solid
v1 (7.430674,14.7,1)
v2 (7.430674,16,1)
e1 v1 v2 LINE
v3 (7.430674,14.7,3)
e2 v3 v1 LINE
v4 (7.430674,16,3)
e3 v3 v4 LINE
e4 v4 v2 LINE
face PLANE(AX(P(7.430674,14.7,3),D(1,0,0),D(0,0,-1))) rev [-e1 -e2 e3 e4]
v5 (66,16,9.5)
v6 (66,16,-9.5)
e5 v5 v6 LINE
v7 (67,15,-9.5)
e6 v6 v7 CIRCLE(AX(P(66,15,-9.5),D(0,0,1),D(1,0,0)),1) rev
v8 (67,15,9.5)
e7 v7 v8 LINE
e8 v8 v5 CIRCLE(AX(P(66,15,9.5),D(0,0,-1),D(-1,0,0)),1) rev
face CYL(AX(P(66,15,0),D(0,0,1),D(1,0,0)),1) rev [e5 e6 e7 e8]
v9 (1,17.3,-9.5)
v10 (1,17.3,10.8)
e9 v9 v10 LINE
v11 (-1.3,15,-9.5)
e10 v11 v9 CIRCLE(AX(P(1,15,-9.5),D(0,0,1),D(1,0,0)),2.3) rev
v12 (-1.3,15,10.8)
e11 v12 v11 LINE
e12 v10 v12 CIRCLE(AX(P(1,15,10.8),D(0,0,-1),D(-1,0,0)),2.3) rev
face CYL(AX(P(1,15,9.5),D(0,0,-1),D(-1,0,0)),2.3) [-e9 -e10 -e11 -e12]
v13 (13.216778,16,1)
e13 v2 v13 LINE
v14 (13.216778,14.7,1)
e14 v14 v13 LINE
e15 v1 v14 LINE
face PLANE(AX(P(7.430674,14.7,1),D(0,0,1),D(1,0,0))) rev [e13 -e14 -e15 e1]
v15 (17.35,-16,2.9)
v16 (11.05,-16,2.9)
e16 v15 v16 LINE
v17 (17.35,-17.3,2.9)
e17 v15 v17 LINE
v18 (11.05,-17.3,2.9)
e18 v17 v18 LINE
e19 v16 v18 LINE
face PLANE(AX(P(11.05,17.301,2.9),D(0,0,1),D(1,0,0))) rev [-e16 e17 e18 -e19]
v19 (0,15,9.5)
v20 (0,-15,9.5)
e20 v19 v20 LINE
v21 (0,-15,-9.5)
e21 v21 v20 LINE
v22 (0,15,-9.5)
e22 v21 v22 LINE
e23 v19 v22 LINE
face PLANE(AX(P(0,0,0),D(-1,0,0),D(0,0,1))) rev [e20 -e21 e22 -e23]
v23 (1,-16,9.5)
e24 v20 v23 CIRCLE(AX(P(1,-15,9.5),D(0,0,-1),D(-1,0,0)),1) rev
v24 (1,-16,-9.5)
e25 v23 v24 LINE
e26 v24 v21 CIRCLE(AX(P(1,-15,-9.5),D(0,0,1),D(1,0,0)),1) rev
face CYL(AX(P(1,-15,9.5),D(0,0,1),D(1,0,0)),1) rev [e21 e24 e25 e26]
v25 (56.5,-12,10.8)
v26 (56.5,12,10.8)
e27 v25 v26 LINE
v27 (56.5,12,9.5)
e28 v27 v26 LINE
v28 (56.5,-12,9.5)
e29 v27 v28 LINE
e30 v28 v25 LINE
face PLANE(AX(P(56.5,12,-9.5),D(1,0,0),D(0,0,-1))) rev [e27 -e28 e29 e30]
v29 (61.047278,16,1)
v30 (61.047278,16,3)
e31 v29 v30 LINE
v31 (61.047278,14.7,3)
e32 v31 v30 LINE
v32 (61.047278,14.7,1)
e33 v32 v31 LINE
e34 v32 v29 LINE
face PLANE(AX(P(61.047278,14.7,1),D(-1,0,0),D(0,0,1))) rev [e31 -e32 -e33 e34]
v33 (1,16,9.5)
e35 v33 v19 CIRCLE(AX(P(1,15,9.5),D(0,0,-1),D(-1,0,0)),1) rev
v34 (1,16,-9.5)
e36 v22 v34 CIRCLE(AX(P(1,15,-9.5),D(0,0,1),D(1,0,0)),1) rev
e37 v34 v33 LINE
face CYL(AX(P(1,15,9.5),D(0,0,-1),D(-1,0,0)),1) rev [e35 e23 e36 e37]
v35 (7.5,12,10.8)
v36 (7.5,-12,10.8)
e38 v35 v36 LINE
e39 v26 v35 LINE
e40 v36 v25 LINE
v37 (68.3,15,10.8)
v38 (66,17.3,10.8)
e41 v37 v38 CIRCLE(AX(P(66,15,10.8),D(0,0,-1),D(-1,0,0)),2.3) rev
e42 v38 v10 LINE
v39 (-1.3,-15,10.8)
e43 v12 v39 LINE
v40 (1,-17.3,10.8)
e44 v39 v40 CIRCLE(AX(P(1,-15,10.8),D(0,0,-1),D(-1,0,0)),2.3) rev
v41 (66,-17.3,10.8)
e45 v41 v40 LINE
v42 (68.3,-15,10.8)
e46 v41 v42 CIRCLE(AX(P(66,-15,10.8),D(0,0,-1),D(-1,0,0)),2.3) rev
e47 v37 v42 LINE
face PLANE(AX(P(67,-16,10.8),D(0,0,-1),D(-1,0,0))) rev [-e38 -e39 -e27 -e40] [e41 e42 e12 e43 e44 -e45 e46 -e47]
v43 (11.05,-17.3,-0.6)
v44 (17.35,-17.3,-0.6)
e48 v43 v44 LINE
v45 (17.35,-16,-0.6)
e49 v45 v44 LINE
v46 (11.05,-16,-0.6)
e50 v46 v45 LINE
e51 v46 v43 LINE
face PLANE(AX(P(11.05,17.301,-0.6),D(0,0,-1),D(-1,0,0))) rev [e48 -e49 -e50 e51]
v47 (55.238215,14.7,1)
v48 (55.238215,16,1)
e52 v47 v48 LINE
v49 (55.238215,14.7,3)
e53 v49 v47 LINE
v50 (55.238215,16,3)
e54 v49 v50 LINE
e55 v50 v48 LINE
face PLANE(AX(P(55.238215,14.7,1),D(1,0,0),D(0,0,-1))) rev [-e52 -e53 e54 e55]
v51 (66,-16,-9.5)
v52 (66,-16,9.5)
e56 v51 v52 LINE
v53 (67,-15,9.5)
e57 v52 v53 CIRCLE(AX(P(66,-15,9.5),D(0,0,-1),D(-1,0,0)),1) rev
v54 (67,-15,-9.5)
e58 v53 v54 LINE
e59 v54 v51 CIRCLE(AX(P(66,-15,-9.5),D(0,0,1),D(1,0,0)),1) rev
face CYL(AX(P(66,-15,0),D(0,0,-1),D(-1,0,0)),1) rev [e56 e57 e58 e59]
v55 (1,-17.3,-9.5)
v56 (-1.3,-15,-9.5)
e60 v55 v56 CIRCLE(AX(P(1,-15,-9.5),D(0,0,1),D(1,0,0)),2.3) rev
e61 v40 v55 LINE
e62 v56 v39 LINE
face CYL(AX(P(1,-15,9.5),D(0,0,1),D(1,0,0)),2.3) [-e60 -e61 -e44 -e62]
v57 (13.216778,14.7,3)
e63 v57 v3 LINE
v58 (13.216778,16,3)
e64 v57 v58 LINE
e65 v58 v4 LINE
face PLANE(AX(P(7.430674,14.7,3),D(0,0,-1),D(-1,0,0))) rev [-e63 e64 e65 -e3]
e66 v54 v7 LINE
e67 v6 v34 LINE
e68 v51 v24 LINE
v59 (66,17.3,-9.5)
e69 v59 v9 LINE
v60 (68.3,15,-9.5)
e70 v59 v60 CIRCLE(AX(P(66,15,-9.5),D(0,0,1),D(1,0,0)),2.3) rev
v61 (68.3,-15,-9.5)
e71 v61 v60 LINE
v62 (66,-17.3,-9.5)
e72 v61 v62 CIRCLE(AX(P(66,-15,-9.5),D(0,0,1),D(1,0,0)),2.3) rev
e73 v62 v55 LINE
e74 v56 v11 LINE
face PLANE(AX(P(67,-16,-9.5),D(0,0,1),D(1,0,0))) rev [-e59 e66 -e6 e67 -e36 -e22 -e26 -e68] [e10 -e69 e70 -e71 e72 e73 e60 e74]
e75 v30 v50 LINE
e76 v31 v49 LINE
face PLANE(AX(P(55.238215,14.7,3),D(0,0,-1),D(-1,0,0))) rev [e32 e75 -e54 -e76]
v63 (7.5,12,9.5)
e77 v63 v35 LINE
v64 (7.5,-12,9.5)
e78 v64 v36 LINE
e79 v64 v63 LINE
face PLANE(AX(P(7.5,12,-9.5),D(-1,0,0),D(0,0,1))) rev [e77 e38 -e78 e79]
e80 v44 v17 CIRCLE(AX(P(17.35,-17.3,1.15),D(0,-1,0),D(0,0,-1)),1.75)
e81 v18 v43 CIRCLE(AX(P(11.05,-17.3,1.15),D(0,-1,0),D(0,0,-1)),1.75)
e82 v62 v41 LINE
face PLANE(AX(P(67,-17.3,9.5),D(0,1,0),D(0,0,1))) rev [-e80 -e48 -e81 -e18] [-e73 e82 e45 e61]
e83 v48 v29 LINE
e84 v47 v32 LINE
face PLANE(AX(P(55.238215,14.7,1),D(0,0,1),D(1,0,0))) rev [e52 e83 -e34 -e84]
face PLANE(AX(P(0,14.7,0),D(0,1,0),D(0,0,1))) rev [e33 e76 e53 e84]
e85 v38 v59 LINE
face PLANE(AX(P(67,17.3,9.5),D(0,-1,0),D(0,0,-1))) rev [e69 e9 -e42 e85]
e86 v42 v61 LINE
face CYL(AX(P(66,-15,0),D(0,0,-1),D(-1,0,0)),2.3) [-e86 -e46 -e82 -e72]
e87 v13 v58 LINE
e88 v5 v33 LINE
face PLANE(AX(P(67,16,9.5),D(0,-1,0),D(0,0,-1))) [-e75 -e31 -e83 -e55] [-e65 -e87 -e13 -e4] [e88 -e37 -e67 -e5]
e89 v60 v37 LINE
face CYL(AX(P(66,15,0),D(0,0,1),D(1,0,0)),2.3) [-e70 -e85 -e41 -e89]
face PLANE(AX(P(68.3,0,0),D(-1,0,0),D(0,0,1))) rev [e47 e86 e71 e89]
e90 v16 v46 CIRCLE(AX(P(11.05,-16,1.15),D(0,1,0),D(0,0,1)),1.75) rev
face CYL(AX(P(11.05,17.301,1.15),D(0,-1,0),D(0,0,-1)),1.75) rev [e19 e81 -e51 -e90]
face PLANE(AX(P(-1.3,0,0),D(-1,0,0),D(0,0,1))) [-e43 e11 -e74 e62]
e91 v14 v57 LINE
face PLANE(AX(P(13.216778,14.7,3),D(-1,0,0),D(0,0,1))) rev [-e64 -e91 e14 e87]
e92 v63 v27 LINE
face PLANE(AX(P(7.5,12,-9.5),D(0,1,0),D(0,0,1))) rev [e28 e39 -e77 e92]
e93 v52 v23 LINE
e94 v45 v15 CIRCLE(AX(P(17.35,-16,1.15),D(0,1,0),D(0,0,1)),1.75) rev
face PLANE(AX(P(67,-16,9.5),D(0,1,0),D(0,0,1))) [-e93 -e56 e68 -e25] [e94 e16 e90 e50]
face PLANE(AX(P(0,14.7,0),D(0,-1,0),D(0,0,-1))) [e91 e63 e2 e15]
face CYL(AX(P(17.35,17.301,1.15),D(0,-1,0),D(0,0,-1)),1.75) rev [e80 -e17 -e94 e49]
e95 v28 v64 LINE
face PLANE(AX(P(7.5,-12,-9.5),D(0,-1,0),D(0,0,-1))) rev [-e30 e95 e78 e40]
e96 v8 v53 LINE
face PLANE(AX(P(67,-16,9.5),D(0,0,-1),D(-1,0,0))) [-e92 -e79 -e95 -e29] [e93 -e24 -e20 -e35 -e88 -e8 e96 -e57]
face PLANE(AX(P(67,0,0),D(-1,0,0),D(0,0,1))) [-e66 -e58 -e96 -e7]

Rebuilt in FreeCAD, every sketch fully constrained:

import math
import FreeCAD as App
import Part
import Sketcher
from FreeCAD import Vector
Q = App.Units.Quantity


def edges_at(feature, points):
    """Names of the edges that pass closest to the given points."""
    edges = feature.Shape.Edges
    near = lambda p: min(range(len(edges)), key=lambda i: edges[i].distToShape(Part.Vertex(*p))[0])
    return sorted({f"Edge{near(p) + 1}" for p in points})


def faces_at(feature, points):
    """Names of the faces that lie closest to the given points."""
    faces = feature.Shape.Faces
    near = lambda p: min(range(len(faces)), key=lambda i: faces[i].distToShape(Part.Vertex(*p))[0])
    return sorted({f"Face{near(p) + 1}" for p in points})

doc = App.newDocument("Part")
body = doc.addObject("PartDesign::Body", "Body")

# Sketch on YZ plane
sketch1 = body.newObject("Sketcher::SketchObject", "Sketch")
sketch1.AttachmentSupport = (doc.getObject("YZ_Plane"), [""])
sketch1.MapMode = "FlatFace"
sketch1.addGeometry(Part.LineSegment(Vector(16, 10, 0), Vector(-16, 10, 0)), False)
sketch1.addGeometry(Part.LineSegment(Vector(-16, 10, 0), Vector(-16, -10, 0)), False)
sketch1.addGeometry(Part.LineSegment(Vector(-16, -10, 0), Vector(16, -10, 0)), False)
sketch1.addGeometry(Part.LineSegment(Vector(16, -10, 0), Vector(16, 10, 0)), False)
sketch1.addConstraint(Sketcher.Constraint("Coincident", 0, 2, 1, 1))
sketch1.addConstraint(Sketcher.Constraint("Coincident", 1, 2, 2, 1))
sketch1.addConstraint(Sketcher.Constraint("Coincident", 2, 2, 3, 1))
sketch1.addConstraint(Sketcher.Constraint("Coincident", 3, 2, 0, 1))
sketch1.addConstraint(Sketcher.Constraint("Horizontal", 0))
sketch1.addConstraint(Sketcher.Constraint("Vertical", 1))
sketch1.addConstraint(Sketcher.Constraint("Horizontal", 2))
sketch1.addConstraint(Sketcher.Constraint("Vertical", 3))
sketch1.addConstraint(Sketcher.Constraint("Symmetric", 0, 2, 2, 2, -1, 1))
sketch1.addConstraint(Sketcher.Constraint("DistanceX", 0, 2, 0, 1, Q("32 mm")))
sketch1.addConstraint(Sketcher.Constraint("DistanceY", 1, 2, 1, 1, Q("19 mm")))
pad1 = body.newObject("PartDesign::Pad", "Pad")
pad1.Profile = sketch1
pad1.Length = 67
doc.recompute()

fillet = body.newObject("PartDesign::Fillet", "Fillet")
fillet.Base = (pad1, edges_at(pad1, [
    (67, -16, 0),
    (0, -16, 0),
    (0, 16, 0),
    (67, 16, 0),
]))
fillet.Radius = 1
doc.recompute()

thickness = body.newObject("PartDesign::Thickness", "Thickness")
thickness.Base = (fillet, faces_at(fillet, [(33.5, 0, -9.5)]))
thickness.Value = 1.3
thickness.Reversed = False
thickness.Join = "Intersection"

# Sketch on XY plane
sketch2 = body.newObject("Sketcher::SketchObject", "Sketch001")
sketch2.AttachmentSupport = (doc.getObject("XY_Plane"), [""])
sketch2.MapMode = "FlatFace"
sketch2.AttachmentOffset = App.Placement(Vector(0, 0, 10.8), App.Rotation())
sketch2.addGeometry(Part.LineSegment(Vector(8, 12, 0), Vector(8, -12, 0)), False)
sketch2.addGeometry(Part.LineSegment(Vector(8, -12, 0), Vector(56, -12, 0)), False)
sketch2.addGeometry(Part.LineSegment(Vector(56, -12, 0), Vector(56, 12, 0)), False)
sketch2.addGeometry(Part.LineSegment(Vector(56, 12, 0), Vector(8, 12, 0)), False)
sketch2.addConstraint(Sketcher.Constraint("Coincident", 0, 2, 1, 1))
sketch2.addConstraint(Sketcher.Constraint("Coincident", 1, 2, 2, 1))
sketch2.addConstraint(Sketcher.Constraint("Coincident", 2, 2, 3, 1))
sketch2.addConstraint(Sketcher.Constraint("Coincident", 3, 2, 0, 1))
sketch2.addConstraint(Sketcher.Constraint("Vertical", 0))
sketch2.addConstraint(Sketcher.Constraint("Horizontal", 1))
sketch2.addConstraint(Sketcher.Constraint("Vertical", 2))
sketch2.addConstraint(Sketcher.Constraint("Horizontal", 3))
sketch2.addConstraint(Sketcher.Constraint("DistanceX", 1, 1, 1, 2, Q("49 mm")))
sketch2.addConstraint(Sketcher.Constraint("DistanceY", 0, 2, 0, 1, Q("24 mm")))
sketch2.addConstraint(Sketcher.Constraint("DistanceY", 0, 2, -1, 1, Q("12 mm")))
sketch2.addConstraint(Sketcher.Constraint("DistanceX", -1, 1, 0, 2, Q("7.5 mm")))
pocket1 = body.newObject("PartDesign::Pocket", "Pocket")
pocket1.Profile = sketch2
pocket1.Type = "ThroughAll"

# Sketch on XZ plane
sketch3 = body.newObject("Sketcher::SketchObject", "Sketch002")
sketch3.AttachmentSupport = (doc.getObject("XZ_Plane"), [""])
sketch3.MapMode = "FlatFace"
sketch3.AttachmentOffset = App.Placement(Vector(0, 0, 17.3), App.Rotation())
sketch3.addGeometry(Part.LineSegment(Vector(17.4, 2.9, 0), Vector(11.1, 2.9, 0)), False)
sketch3.addGeometry(Part.ArcOfCircle(Part.Circle(Vector(11.1, 1.1, 0), Vector(0, 0, 1), 1.8), math.radians(90), math.radians(270)), False)
sketch3.addGeometry(Part.LineSegment(Vector(11.1, -0.6, 0), Vector(17.4, -0.6, 0)), False)
sketch3.addGeometry(Part.ArcOfCircle(Part.Circle(Vector(17.4, 1.1, 0), Vector(0, 0, 1), 1.8), math.radians(-90), math.radians(90)), False)
sketch3.addConstraint(Sketcher.Constraint("Tangent", 0, 2, 1, 1))
sketch3.addConstraint(Sketcher.Constraint("Tangent", 1, 2, 2, 1))
sketch3.addConstraint(Sketcher.Constraint("Tangent", 2, 2, 3, 1))
sketch3.addConstraint(Sketcher.Constraint("Tangent", 3, 2, 0, 1))
sketch3.addConstraint(Sketcher.Constraint("Horizontal", 0))
sketch3.addConstraint(Sketcher.Constraint("Horizontal", 2))
sketch3.addConstraint(Sketcher.Constraint("Radius", 1, Q("1.75 mm")))
sketch3.addConstraint(Sketcher.Constraint("DistanceX", 0, 2, 0, 1, Q("6.3 mm")))
sketch3.addConstraint(Sketcher.Constraint("DistanceY", -1, 1, 0, 2, Q("2.9 mm")))
sketch3.addConstraint(Sketcher.Constraint("DistanceX", -1, 1, 1, 3, Q("11.05 mm")))
pocket2 = body.newObject("PartDesign::Pocket", "Pocket001")
pocket2.Profile = sketch3
pocket2.Type = "UpToFirst"

# Sketch on XZ plane
sketch4 = body.newObject("Sketcher::SketchObject", "Sketch003")
sketch4.AttachmentSupport = (doc.getObject("XZ_Plane"), [""])
sketch4.MapMode = "FlatFace"
sketch4.AttachmentOffset = App.Placement(Vector(0, 0, -16), App.Rotation())
sketch4.addGeometry(Part.LineSegment(Vector(7.4, 3, 0), Vector(7.4, 1, 0)), False)
sketch4.addGeometry(Part.LineSegment(Vector(7.4, 1, 0), Vector(13.2, 1, 0)), False)
sketch4.addGeometry(Part.LineSegment(Vector(13.2, 1, 0), Vector(13.2, 3, 0)), False)
sketch4.addGeometry(Part.LineSegment(Vector(13.2, 3, 0), Vector(7.4, 3, 0)), False)
sketch4.addGeometry(Part.LineSegment(Vector(55.2, 3, 0), Vector(55.2, 1, 0)), False)
sketch4.addGeometry(Part.LineSegment(Vector(55.2, 1, 0), Vector(61, 1, 0)), False)
sketch4.addGeometry(Part.LineSegment(Vector(61, 1, 0), Vector(61, 3, 0)), False)
sketch4.addGeometry(Part.LineSegment(Vector(61, 3, 0), Vector(55.2, 3, 0)), False)
sketch4.addConstraint(Sketcher.Constraint("Coincident", 0, 2, 1, 1))
sketch4.addConstraint(Sketcher.Constraint("Coincident", 1, 2, 2, 1))
sketch4.addConstraint(Sketcher.Constraint("Coincident", 2, 2, 3, 1))
sketch4.addConstraint(Sketcher.Constraint("Coincident", 3, 2, 0, 1))
sketch4.addConstraint(Sketcher.Constraint("Coincident", 4, 2, 5, 1))
sketch4.addConstraint(Sketcher.Constraint("Coincident", 5, 2, 6, 1))
sketch4.addConstraint(Sketcher.Constraint("Coincident", 6, 2, 7, 1))
sketch4.addConstraint(Sketcher.Constraint("Coincident", 7, 2, 4, 1))
sketch4.addConstraint(Sketcher.Constraint("Vertical", 0))
sketch4.addConstraint(Sketcher.Constraint("Horizontal", 1))
sketch4.addConstraint(Sketcher.Constraint("Vertical", 2))
sketch4.addConstraint(Sketcher.Constraint("Horizontal", 3))
sketch4.addConstraint(Sketcher.Constraint("Vertical", 4))
sketch4.addConstraint(Sketcher.Constraint("Horizontal", 5))
sketch4.addConstraint(Sketcher.Constraint("Vertical", 6))
sketch4.addConstraint(Sketcher.Constraint("Horizontal", 7))
sketch4.addConstraint(Sketcher.Constraint("Horizontal", 1, 2, 4, 2))
sketch4.addConstraint(Sketcher.Constraint("Horizontal", 3, 2, 6, 2))
sketch4.addConstraint(Sketcher.Constraint("DistanceY", 0, 2, 0, 1, Q("2 mm")))
sketch4.addConstraint(Sketcher.Constraint("DistanceY", -1, 1, 0, 2, Q("1 mm")))
sketch4.addConstraint(Sketcher.Constraint("DistanceX", 1, 2, 5, 2, Q("47.8305 mm")))
sketch4.addConstraint(Sketcher.Constraint("DistanceX", 1, 1, 1, 2, Q("5.786104 mm")))
sketch4.addConstraint(Sketcher.Constraint("DistanceX", 5, 1, 5, 2, Q("5.809063 mm")))
sketch4.addConstraint(Sketcher.Constraint("DistanceX", -1, 1, 0, 2, Q("7.430674 mm")))
pad2 = body.newObject("PartDesign::Pad", "Pad001")
pad2.Profile = sketch4
pad2.Length = 1.3

doc.recompute()
